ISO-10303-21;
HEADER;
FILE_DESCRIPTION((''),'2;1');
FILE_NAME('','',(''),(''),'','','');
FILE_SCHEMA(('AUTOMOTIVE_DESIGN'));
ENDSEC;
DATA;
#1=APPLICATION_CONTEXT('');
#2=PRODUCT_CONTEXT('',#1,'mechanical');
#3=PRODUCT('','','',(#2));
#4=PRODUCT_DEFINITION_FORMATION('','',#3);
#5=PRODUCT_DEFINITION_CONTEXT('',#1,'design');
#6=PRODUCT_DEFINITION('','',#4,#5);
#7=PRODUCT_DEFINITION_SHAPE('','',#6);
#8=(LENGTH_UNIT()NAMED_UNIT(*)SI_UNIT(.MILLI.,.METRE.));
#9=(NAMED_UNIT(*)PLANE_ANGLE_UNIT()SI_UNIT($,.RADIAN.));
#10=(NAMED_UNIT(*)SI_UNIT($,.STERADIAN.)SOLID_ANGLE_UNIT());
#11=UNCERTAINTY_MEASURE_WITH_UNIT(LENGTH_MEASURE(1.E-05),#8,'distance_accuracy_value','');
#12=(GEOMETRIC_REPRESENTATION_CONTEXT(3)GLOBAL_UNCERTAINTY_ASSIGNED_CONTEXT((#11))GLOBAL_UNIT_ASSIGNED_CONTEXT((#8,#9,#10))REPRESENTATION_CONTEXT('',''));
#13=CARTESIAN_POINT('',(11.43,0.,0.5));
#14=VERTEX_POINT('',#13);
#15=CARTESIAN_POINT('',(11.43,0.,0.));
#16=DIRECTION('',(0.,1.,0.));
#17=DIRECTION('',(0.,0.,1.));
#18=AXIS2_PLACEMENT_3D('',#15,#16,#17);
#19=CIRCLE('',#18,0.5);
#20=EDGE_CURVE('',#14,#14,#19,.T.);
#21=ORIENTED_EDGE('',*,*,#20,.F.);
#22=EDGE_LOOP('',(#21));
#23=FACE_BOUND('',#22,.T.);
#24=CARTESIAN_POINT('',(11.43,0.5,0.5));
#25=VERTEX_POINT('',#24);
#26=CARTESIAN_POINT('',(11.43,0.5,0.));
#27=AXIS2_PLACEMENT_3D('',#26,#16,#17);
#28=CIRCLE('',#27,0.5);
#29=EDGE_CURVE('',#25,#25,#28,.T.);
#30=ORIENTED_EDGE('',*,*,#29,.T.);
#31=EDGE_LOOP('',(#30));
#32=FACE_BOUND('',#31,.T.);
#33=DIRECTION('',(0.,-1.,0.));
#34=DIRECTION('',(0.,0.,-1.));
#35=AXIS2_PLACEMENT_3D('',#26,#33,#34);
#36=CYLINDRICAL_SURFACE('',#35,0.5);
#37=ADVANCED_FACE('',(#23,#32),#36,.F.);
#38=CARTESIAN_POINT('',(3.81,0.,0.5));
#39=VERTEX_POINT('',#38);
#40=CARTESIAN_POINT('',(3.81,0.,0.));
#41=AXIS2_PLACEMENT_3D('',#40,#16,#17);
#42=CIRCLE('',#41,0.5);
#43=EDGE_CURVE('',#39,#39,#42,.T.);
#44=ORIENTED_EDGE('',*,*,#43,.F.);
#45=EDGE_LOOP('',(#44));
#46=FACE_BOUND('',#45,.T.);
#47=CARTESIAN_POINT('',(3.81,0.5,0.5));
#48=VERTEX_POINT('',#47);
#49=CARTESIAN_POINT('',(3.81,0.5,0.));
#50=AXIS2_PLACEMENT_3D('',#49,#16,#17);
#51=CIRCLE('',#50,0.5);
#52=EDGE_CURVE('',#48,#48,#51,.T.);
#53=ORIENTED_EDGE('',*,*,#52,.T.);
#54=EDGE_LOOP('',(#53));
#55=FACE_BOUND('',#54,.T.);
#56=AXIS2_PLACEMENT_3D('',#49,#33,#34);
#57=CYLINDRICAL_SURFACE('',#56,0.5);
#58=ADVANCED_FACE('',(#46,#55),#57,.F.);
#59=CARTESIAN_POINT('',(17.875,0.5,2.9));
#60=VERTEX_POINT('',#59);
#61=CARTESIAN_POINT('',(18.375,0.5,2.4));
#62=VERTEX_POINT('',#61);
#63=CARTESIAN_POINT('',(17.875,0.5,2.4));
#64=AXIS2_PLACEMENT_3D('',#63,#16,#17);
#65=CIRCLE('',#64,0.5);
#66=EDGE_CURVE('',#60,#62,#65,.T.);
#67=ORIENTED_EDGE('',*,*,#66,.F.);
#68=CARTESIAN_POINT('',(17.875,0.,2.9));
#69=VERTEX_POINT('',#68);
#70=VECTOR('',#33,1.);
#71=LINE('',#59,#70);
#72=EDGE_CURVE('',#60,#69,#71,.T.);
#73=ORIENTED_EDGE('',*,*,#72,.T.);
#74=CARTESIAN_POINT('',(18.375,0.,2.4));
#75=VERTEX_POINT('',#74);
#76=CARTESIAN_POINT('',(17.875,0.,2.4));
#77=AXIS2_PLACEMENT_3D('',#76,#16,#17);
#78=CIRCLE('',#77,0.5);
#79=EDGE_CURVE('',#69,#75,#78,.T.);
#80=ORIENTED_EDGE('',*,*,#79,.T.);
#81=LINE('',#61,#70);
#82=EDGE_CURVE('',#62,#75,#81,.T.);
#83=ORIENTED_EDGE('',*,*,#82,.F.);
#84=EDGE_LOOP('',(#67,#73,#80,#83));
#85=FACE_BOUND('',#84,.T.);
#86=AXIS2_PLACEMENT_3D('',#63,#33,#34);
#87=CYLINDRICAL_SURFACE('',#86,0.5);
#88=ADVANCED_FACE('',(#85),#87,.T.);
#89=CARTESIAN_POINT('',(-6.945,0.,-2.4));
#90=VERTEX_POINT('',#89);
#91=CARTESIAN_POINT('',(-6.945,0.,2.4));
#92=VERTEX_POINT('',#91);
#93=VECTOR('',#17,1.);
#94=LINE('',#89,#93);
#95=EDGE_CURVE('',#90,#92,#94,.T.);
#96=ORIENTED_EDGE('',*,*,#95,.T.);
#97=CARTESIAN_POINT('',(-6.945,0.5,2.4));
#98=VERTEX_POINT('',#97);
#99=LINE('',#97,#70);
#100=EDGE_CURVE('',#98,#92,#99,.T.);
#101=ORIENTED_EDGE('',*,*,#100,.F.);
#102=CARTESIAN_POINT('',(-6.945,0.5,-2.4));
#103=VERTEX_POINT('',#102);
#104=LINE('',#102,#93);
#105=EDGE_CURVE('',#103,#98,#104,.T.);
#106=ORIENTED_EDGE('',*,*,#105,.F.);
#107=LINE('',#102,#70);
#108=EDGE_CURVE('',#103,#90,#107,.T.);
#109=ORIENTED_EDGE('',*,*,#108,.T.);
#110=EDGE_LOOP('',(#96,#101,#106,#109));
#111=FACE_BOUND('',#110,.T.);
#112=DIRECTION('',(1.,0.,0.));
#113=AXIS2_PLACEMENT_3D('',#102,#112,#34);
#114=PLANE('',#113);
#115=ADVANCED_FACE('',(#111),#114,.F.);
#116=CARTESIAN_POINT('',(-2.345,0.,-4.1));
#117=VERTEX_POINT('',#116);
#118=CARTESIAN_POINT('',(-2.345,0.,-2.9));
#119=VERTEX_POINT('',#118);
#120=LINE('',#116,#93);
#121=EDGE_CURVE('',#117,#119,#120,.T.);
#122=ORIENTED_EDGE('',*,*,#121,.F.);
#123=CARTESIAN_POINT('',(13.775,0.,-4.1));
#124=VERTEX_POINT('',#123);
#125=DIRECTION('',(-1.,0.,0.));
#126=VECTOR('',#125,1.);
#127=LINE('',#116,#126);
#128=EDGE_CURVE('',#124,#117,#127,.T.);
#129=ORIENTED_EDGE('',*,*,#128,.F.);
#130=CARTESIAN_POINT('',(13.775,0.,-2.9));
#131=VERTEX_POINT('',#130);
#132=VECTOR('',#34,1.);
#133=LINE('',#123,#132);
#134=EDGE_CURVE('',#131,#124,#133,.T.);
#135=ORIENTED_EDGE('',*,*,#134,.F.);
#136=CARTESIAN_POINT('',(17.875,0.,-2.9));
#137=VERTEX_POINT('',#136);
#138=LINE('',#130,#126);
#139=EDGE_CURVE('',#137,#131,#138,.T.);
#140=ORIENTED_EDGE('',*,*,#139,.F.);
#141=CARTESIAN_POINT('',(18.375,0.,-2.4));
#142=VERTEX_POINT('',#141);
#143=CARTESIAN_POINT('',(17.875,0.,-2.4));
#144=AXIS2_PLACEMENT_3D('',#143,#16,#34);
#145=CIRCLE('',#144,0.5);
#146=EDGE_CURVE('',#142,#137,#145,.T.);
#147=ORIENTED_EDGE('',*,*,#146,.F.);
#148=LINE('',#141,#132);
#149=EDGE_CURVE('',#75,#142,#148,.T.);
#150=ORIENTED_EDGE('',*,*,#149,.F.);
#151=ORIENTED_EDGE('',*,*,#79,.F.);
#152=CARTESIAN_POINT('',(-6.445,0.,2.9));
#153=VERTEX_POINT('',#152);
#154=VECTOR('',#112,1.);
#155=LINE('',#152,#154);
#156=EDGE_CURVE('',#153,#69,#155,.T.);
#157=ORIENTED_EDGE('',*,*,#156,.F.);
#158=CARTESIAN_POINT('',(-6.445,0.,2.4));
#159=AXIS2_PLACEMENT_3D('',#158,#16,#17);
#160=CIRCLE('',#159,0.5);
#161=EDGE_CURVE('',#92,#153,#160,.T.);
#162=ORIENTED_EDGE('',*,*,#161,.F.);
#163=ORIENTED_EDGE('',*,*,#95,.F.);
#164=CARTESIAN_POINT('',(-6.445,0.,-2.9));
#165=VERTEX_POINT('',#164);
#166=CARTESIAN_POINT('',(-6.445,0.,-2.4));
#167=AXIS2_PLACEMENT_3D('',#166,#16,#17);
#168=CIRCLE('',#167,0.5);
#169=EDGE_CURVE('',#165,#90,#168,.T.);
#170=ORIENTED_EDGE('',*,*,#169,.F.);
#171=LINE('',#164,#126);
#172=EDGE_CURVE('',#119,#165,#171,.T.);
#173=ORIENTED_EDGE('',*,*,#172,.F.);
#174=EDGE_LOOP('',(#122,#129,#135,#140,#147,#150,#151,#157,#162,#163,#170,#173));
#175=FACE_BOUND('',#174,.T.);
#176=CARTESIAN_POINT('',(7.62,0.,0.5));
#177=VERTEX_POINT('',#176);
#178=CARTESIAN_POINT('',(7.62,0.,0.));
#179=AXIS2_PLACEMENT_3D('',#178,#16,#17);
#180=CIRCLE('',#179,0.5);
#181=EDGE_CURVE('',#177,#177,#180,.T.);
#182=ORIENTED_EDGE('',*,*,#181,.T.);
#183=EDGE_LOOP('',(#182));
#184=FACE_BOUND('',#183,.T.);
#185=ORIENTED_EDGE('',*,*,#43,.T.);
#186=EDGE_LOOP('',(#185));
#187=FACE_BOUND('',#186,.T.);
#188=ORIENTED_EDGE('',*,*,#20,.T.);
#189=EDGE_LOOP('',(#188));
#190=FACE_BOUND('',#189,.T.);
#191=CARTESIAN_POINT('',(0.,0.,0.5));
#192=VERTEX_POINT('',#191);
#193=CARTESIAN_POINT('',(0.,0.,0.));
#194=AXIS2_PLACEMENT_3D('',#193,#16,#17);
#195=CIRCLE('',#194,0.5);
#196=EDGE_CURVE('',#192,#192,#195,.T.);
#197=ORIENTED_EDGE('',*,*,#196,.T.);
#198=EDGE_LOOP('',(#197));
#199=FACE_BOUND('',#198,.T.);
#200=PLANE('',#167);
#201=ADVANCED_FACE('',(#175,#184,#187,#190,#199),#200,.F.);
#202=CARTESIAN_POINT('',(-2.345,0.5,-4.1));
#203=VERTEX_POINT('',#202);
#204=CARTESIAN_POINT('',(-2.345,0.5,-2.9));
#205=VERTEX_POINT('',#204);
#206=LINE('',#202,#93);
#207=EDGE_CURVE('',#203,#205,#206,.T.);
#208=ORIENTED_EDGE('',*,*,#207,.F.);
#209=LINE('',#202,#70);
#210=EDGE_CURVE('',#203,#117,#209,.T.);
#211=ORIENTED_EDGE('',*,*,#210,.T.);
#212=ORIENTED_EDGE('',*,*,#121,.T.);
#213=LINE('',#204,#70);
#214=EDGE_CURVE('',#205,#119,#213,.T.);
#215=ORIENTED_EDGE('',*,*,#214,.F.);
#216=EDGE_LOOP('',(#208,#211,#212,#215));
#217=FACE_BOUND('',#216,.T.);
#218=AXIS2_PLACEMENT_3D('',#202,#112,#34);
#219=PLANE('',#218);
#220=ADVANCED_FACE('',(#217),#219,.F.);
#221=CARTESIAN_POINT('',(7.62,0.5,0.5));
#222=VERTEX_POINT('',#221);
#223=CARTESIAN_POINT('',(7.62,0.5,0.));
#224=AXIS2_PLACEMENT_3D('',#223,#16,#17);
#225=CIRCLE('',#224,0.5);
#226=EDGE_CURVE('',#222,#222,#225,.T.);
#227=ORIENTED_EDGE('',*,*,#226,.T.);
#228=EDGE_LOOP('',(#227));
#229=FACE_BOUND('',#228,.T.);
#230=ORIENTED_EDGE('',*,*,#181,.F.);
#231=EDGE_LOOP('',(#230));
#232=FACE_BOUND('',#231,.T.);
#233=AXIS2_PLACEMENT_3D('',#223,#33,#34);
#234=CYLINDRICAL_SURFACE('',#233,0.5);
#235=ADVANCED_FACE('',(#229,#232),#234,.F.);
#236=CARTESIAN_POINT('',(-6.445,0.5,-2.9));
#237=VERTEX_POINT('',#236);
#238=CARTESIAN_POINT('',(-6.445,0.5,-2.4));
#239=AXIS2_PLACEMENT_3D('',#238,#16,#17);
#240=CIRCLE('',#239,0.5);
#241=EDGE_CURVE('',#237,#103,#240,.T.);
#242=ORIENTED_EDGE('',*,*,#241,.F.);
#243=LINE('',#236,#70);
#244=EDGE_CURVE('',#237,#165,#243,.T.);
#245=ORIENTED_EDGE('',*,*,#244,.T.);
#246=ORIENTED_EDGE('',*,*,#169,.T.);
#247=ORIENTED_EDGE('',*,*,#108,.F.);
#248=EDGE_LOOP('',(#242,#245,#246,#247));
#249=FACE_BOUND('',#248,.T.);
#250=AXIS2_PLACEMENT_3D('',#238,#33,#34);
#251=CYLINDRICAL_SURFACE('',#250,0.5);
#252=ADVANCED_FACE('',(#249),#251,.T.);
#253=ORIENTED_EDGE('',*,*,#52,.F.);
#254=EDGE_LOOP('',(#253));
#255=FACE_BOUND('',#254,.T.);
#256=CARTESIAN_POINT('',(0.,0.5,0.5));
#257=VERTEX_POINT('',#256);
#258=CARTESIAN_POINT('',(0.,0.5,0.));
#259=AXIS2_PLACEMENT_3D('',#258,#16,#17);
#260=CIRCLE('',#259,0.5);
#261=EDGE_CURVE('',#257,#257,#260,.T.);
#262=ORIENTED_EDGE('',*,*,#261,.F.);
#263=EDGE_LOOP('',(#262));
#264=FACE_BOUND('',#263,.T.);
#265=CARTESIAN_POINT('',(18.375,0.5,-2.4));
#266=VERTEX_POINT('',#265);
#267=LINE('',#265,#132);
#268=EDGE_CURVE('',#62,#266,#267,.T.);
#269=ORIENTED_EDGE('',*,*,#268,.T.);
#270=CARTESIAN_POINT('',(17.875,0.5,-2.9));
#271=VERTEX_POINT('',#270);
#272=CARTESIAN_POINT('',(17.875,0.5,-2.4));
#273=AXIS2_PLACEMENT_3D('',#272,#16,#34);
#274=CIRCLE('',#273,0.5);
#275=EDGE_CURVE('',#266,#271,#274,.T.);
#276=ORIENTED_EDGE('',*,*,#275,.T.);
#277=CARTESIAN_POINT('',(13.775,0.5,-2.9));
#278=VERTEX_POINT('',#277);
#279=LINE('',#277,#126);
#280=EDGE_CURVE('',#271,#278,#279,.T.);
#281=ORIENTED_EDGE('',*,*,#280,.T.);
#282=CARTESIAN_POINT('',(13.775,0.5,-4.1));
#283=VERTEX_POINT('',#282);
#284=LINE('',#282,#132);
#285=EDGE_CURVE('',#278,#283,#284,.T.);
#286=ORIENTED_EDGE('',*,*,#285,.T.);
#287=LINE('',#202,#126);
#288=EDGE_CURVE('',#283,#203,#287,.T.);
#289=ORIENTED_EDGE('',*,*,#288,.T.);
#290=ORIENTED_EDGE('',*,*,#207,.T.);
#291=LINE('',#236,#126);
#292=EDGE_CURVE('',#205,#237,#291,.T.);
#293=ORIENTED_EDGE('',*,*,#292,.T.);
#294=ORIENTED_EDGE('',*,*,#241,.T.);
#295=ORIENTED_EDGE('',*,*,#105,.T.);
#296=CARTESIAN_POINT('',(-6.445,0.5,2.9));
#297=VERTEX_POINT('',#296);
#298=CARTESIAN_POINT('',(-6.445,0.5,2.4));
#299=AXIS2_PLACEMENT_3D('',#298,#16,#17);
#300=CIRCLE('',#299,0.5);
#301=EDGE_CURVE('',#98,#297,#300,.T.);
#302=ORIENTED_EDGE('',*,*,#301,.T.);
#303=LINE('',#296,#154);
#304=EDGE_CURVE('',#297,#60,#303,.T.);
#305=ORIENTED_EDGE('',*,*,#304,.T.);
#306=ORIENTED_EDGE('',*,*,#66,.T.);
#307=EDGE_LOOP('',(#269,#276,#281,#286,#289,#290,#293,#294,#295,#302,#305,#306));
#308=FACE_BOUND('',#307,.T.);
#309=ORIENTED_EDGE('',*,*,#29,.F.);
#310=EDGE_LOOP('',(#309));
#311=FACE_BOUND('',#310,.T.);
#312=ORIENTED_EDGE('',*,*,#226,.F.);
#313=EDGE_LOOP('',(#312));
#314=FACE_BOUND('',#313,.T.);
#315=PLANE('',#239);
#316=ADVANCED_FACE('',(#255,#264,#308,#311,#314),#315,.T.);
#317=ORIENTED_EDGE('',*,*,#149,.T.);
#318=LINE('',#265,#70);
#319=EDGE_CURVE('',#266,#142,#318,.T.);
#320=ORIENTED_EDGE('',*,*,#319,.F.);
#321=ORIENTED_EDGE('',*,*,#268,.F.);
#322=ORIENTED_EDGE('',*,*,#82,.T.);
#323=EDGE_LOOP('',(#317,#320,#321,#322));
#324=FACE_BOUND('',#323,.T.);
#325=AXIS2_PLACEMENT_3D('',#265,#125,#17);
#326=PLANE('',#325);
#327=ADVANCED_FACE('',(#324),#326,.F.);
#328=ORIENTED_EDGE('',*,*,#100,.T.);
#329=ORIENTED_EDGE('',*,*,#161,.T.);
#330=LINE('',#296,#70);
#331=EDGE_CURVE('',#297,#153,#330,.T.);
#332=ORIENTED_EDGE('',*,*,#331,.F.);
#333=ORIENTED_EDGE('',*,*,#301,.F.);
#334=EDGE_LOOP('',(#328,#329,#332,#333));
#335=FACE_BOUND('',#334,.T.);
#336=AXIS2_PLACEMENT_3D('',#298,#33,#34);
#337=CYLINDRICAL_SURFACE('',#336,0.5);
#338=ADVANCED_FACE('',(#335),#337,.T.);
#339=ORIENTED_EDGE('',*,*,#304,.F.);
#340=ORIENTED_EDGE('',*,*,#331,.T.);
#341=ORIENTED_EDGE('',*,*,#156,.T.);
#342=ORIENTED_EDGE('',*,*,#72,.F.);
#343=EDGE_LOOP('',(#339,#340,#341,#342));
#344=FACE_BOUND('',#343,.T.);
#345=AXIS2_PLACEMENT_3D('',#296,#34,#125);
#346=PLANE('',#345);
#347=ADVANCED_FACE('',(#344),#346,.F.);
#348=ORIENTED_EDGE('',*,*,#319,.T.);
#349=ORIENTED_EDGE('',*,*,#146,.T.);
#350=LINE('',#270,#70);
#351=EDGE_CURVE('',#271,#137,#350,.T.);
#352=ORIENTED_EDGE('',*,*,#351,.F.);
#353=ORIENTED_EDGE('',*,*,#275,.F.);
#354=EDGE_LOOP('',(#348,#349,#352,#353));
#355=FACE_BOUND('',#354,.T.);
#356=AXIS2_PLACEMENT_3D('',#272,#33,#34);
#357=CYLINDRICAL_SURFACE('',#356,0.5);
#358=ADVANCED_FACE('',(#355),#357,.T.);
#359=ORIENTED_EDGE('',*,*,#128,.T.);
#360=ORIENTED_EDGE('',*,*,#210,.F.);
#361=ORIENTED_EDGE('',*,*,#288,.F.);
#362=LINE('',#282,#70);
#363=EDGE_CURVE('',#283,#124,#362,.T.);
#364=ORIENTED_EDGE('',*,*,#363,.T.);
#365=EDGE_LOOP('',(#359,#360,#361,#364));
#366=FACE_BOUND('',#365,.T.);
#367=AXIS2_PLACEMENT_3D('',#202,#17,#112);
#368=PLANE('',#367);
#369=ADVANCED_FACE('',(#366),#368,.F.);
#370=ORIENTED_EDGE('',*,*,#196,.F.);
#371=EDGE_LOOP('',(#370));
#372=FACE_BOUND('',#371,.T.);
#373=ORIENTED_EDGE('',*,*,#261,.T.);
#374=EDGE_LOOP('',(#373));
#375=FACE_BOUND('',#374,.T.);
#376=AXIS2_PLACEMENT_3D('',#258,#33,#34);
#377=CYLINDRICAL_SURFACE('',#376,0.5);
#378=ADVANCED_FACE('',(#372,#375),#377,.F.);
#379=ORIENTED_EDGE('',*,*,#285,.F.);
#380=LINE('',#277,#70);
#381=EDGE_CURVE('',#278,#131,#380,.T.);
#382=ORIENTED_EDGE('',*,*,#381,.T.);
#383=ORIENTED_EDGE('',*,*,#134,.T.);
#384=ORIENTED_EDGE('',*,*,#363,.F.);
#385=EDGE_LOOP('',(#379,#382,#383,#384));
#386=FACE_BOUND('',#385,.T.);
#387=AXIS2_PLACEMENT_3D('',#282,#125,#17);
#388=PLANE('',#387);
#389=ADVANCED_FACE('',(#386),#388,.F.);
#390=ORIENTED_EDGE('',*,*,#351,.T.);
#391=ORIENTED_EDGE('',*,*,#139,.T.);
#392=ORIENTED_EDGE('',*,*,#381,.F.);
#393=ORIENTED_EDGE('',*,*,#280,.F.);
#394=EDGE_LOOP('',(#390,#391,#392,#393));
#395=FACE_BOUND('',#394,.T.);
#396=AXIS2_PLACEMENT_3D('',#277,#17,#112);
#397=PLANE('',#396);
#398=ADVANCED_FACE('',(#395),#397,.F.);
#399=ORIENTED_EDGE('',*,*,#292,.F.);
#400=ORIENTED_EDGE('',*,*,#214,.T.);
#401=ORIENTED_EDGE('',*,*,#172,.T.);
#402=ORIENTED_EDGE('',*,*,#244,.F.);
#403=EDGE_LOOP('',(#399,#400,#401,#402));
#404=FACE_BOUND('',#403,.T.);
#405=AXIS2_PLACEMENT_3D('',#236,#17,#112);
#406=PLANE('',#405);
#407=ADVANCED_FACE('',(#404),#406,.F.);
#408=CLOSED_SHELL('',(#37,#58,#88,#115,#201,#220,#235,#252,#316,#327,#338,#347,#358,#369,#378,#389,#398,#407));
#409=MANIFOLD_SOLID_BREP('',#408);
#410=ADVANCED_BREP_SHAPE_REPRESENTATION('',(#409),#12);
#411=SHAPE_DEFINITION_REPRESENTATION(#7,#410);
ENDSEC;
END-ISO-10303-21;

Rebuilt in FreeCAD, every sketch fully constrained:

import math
import FreeCAD as App
import Part
import Sketcher
from FreeCAD import Vector
Q = App.Units.Quantity

doc = App.newDocument("Part")
body = doc.addObject("PartDesign::Body", "Body")

# Sketch on XZ plane
sketch1 = body.newObject("Sketcher::SketchObject", "Sketch")
sketch1.AttachmentSupport = (doc.getObject("XZ_Plane"), [""])
sketch1.MapMode = "FlatFace"
sketch1.addGeometry(Part.LineSegment(Vector(17.88, -2.9, 0), Vector(13.78, -2.9, 0)), False)
sketch1.addGeometry(Part.LineSegment(Vector(13.78, -2.9, 0), Vector(13.78, -4.1, 0)), False)
sketch1.addGeometry(Part.LineSegment(Vector(13.78, -4.1, 0), Vector(-2.35, -4.1, 0)), False)
sketch1.addGeometry(Part.LineSegment(Vector(-2.35, -4.1, 0), Vector(-2.35, -2.9, 0)), False)
sketch1.addGeometry(Part.LineSegment(Vector(-2.35, -2.9, 0), Vector(-6.45, -2.9, 0)), False)
sketch1.addGeometry(Part.ArcOfCircle(Part.Circle(Vector(-6.45, -2.4, 0), Vector(0, 0, 1), 0.5), math.radians(180), math.radians(270)), False)
sketch1.addGeometry(Part.LineSegment(Vector(-6.95, -2.4, 0), Vector(-6.95, 2.4, 0)), False)
sketch1.addGeometry(Part.ArcOfCircle(Part.Circle(Vector(-6.45, 2.4, 0), Vector(0, 0, 1), 0.5), math.radians(90), math.radians(180)), False)
sketch1.addGeometry(Part.LineSegment(Vector(-6.45, 2.9, 0), Vector(17.88, 2.9, 0)), False)
sketch1.addGeometry(Part.ArcOfCircle(Part.Circle(Vector(17.88, 2.4, 0), Vector(0, 0, 1), 0.5), math.radians(0), math.radians(90)), False)
sketch1.addGeometry(Part.LineSegment(Vector(18.38, 2.4, 0), Vector(18.38, -2.4, 0)), False)
sketch1.addGeometry(Part.ArcOfCircle(Part.Circle(Vector(17.88, -2.4, 0), Vector(0, 0, 1), 0.5), math.radians(-90), math.radians(0)), False)
sketch1.addGeometry(Part.Circle(Vector(11.43, 0, 0), Vector(0, 0, 1), 0.5), False)
sketch1.addGeometry(Part.Circle(Vector(7.62, 0, 0), Vector(0, 0, 1), 0.5), False)
sketch1.addGeometry(Part.Circle(Vector(3.81, 0, 0), Vector(0, 0, 1), 0.5), False)
sketch1.addGeometry(Part.Circle(Vector(0, 0, 0), Vector(0, 0, 1), 0.5), False)
sketch1.addConstraint(Sketcher.Constraint("Coincident", 0, 2, 1, 1))
sketch1.addConstraint(Sketcher.Constraint("Coincident", 1, 2, 2, 1))
sketch1.addConstraint(Sketcher.Constraint("Coincident", 2, 2, 3, 1))
sketch1.addConstraint(Sketcher.Constraint("Coincident", 3, 2, 4, 1))
sketch1.addConstraint(Sketcher.Constraint("Tangent", 4, 2, 5, 2))
sketch1.addConstraint(Sketcher.Constraint("Tangent", 5, 1, 6, 1))
sketch1.addConstraint(Sketcher.Constraint("Tangent", 6, 2, 7, 2))
sketch1.addConstraint(Sketcher.Constraint("Tangent", 7, 1, 8, 1))
sketch1.addConstraint(Sketcher.Constraint("Tangent", 8, 2, 9, 2))
sketch1.addConstraint(Sketcher.Constraint("Tangent", 9, 1, 10, 1))
sketch1.addConstraint(Sketcher.Constraint("Tangent", 10, 2, 11, 2))
sketch1.addConstraint(Sketcher.Constraint("Tangent", 11, 1, 0, 1))
sketch1.addConstraint(Sketcher.Constraint("Horizontal", 0))
sketch1.addConstraint(Sketcher.Constraint("Vertical", 1))
sketch1.addConstraint(Sketcher.Constraint("Horizontal", 2))
sketch1.addConstraint(Sketcher.Constraint("Vertical", 3))
sketch1.addConstraint(Sketcher.Constraint("Horizontal", 4))
sketch1.addConstraint(Sketcher.Constraint("Vertical", 6))
sketch1.addConstraint(Sketcher.Constraint("Horizontal", 8))
sketch1.addConstraint(Sketcher.Constraint("Vertical", 10))
sketch1.addConstraint(Sketcher.Constraint("Coincident", 15, 3, -1, 1))
sketch1.addConstraint(Sketcher.Constraint("Equal", 5, 7))
sketch1.addConstraint(Sketcher.Constraint("Equal", 7, 9))
sketch1.addConstraint(Sketcher.Constraint("Equal", 9, 11))
sketch1.addConstraint(Sketcher.Constraint("Equal", 11, 12))
sketch1.addConstraint(Sketcher.Constraint("Equal", 12, 13))
sketch1.addConstraint(Sketcher.Constraint("Equal", 13, 14))
sketch1.addConstraint(Sketcher.Constraint("Equal", 14, 15))
sketch1.addConstraint(Sketcher.Constraint("PointOnObject", 12, 3, -1))
sketch1.addConstraint(Sketcher.Constraint("PointOnObject", 13, 3, -1))
sketch1.addConstraint(Sketcher.Constraint("PointOnObject", 14, 3, -1))
sketch1.addConstraint(Sketcher.Constraint("Horizontal", 5, 3, 11, 3))
sketch1.addConstraint(Sketcher.Constraint("Equal", 0, 4))
sketch1.addConstraint(Sketcher.Constraint("Diameter", 12, Q("1 mm")))
sketch1.addConstraint(Sketcher.Constraint("DistanceX", 0, 2, 0, 1, Q("4.1 mm")))
sketch1.addConstraint(Sketcher.Constraint("DistanceY", 1, 2, 1, 1, Q("1.2 mm")))
sketch1.addConstraint(Sketcher.Constraint("DistanceY", 6, 1, 6, 2, Q("4.8 mm")))
sketch1.addConstraint(Sketcher.Constraint("DistanceX", 2, 2, 2, 1, Q("16.12 mm")))
sketch1.addConstraint(Sketcher.Constraint("DistanceY", 5, 3, -1, 1, Q("2.4 mm")))
sketch1.addConstraint(Sketcher.Constraint("DistanceX", -1, 1, 12, 3, Q("11.43 mm")))
sketch1.addConstraint(Sketcher.Constraint("DistanceX", -1, 1, 13, 3, Q("7.62 mm")))
sketch1.addConstraint(Sketcher.Constraint("DistanceX", -1, 1, 14, 3, Q("3.81 mm")))
sketch1.addConstraint(Sketcher.Constraint("DistanceX", 5, 3, -1, 1, Q("6.445 mm")))
pad1 = body.newObject("PartDesign::Pad", "Pad")
pad1.Profile = sketch1
pad1.Length = 0.5
pad1.Reversed = True

doc.recompute()
